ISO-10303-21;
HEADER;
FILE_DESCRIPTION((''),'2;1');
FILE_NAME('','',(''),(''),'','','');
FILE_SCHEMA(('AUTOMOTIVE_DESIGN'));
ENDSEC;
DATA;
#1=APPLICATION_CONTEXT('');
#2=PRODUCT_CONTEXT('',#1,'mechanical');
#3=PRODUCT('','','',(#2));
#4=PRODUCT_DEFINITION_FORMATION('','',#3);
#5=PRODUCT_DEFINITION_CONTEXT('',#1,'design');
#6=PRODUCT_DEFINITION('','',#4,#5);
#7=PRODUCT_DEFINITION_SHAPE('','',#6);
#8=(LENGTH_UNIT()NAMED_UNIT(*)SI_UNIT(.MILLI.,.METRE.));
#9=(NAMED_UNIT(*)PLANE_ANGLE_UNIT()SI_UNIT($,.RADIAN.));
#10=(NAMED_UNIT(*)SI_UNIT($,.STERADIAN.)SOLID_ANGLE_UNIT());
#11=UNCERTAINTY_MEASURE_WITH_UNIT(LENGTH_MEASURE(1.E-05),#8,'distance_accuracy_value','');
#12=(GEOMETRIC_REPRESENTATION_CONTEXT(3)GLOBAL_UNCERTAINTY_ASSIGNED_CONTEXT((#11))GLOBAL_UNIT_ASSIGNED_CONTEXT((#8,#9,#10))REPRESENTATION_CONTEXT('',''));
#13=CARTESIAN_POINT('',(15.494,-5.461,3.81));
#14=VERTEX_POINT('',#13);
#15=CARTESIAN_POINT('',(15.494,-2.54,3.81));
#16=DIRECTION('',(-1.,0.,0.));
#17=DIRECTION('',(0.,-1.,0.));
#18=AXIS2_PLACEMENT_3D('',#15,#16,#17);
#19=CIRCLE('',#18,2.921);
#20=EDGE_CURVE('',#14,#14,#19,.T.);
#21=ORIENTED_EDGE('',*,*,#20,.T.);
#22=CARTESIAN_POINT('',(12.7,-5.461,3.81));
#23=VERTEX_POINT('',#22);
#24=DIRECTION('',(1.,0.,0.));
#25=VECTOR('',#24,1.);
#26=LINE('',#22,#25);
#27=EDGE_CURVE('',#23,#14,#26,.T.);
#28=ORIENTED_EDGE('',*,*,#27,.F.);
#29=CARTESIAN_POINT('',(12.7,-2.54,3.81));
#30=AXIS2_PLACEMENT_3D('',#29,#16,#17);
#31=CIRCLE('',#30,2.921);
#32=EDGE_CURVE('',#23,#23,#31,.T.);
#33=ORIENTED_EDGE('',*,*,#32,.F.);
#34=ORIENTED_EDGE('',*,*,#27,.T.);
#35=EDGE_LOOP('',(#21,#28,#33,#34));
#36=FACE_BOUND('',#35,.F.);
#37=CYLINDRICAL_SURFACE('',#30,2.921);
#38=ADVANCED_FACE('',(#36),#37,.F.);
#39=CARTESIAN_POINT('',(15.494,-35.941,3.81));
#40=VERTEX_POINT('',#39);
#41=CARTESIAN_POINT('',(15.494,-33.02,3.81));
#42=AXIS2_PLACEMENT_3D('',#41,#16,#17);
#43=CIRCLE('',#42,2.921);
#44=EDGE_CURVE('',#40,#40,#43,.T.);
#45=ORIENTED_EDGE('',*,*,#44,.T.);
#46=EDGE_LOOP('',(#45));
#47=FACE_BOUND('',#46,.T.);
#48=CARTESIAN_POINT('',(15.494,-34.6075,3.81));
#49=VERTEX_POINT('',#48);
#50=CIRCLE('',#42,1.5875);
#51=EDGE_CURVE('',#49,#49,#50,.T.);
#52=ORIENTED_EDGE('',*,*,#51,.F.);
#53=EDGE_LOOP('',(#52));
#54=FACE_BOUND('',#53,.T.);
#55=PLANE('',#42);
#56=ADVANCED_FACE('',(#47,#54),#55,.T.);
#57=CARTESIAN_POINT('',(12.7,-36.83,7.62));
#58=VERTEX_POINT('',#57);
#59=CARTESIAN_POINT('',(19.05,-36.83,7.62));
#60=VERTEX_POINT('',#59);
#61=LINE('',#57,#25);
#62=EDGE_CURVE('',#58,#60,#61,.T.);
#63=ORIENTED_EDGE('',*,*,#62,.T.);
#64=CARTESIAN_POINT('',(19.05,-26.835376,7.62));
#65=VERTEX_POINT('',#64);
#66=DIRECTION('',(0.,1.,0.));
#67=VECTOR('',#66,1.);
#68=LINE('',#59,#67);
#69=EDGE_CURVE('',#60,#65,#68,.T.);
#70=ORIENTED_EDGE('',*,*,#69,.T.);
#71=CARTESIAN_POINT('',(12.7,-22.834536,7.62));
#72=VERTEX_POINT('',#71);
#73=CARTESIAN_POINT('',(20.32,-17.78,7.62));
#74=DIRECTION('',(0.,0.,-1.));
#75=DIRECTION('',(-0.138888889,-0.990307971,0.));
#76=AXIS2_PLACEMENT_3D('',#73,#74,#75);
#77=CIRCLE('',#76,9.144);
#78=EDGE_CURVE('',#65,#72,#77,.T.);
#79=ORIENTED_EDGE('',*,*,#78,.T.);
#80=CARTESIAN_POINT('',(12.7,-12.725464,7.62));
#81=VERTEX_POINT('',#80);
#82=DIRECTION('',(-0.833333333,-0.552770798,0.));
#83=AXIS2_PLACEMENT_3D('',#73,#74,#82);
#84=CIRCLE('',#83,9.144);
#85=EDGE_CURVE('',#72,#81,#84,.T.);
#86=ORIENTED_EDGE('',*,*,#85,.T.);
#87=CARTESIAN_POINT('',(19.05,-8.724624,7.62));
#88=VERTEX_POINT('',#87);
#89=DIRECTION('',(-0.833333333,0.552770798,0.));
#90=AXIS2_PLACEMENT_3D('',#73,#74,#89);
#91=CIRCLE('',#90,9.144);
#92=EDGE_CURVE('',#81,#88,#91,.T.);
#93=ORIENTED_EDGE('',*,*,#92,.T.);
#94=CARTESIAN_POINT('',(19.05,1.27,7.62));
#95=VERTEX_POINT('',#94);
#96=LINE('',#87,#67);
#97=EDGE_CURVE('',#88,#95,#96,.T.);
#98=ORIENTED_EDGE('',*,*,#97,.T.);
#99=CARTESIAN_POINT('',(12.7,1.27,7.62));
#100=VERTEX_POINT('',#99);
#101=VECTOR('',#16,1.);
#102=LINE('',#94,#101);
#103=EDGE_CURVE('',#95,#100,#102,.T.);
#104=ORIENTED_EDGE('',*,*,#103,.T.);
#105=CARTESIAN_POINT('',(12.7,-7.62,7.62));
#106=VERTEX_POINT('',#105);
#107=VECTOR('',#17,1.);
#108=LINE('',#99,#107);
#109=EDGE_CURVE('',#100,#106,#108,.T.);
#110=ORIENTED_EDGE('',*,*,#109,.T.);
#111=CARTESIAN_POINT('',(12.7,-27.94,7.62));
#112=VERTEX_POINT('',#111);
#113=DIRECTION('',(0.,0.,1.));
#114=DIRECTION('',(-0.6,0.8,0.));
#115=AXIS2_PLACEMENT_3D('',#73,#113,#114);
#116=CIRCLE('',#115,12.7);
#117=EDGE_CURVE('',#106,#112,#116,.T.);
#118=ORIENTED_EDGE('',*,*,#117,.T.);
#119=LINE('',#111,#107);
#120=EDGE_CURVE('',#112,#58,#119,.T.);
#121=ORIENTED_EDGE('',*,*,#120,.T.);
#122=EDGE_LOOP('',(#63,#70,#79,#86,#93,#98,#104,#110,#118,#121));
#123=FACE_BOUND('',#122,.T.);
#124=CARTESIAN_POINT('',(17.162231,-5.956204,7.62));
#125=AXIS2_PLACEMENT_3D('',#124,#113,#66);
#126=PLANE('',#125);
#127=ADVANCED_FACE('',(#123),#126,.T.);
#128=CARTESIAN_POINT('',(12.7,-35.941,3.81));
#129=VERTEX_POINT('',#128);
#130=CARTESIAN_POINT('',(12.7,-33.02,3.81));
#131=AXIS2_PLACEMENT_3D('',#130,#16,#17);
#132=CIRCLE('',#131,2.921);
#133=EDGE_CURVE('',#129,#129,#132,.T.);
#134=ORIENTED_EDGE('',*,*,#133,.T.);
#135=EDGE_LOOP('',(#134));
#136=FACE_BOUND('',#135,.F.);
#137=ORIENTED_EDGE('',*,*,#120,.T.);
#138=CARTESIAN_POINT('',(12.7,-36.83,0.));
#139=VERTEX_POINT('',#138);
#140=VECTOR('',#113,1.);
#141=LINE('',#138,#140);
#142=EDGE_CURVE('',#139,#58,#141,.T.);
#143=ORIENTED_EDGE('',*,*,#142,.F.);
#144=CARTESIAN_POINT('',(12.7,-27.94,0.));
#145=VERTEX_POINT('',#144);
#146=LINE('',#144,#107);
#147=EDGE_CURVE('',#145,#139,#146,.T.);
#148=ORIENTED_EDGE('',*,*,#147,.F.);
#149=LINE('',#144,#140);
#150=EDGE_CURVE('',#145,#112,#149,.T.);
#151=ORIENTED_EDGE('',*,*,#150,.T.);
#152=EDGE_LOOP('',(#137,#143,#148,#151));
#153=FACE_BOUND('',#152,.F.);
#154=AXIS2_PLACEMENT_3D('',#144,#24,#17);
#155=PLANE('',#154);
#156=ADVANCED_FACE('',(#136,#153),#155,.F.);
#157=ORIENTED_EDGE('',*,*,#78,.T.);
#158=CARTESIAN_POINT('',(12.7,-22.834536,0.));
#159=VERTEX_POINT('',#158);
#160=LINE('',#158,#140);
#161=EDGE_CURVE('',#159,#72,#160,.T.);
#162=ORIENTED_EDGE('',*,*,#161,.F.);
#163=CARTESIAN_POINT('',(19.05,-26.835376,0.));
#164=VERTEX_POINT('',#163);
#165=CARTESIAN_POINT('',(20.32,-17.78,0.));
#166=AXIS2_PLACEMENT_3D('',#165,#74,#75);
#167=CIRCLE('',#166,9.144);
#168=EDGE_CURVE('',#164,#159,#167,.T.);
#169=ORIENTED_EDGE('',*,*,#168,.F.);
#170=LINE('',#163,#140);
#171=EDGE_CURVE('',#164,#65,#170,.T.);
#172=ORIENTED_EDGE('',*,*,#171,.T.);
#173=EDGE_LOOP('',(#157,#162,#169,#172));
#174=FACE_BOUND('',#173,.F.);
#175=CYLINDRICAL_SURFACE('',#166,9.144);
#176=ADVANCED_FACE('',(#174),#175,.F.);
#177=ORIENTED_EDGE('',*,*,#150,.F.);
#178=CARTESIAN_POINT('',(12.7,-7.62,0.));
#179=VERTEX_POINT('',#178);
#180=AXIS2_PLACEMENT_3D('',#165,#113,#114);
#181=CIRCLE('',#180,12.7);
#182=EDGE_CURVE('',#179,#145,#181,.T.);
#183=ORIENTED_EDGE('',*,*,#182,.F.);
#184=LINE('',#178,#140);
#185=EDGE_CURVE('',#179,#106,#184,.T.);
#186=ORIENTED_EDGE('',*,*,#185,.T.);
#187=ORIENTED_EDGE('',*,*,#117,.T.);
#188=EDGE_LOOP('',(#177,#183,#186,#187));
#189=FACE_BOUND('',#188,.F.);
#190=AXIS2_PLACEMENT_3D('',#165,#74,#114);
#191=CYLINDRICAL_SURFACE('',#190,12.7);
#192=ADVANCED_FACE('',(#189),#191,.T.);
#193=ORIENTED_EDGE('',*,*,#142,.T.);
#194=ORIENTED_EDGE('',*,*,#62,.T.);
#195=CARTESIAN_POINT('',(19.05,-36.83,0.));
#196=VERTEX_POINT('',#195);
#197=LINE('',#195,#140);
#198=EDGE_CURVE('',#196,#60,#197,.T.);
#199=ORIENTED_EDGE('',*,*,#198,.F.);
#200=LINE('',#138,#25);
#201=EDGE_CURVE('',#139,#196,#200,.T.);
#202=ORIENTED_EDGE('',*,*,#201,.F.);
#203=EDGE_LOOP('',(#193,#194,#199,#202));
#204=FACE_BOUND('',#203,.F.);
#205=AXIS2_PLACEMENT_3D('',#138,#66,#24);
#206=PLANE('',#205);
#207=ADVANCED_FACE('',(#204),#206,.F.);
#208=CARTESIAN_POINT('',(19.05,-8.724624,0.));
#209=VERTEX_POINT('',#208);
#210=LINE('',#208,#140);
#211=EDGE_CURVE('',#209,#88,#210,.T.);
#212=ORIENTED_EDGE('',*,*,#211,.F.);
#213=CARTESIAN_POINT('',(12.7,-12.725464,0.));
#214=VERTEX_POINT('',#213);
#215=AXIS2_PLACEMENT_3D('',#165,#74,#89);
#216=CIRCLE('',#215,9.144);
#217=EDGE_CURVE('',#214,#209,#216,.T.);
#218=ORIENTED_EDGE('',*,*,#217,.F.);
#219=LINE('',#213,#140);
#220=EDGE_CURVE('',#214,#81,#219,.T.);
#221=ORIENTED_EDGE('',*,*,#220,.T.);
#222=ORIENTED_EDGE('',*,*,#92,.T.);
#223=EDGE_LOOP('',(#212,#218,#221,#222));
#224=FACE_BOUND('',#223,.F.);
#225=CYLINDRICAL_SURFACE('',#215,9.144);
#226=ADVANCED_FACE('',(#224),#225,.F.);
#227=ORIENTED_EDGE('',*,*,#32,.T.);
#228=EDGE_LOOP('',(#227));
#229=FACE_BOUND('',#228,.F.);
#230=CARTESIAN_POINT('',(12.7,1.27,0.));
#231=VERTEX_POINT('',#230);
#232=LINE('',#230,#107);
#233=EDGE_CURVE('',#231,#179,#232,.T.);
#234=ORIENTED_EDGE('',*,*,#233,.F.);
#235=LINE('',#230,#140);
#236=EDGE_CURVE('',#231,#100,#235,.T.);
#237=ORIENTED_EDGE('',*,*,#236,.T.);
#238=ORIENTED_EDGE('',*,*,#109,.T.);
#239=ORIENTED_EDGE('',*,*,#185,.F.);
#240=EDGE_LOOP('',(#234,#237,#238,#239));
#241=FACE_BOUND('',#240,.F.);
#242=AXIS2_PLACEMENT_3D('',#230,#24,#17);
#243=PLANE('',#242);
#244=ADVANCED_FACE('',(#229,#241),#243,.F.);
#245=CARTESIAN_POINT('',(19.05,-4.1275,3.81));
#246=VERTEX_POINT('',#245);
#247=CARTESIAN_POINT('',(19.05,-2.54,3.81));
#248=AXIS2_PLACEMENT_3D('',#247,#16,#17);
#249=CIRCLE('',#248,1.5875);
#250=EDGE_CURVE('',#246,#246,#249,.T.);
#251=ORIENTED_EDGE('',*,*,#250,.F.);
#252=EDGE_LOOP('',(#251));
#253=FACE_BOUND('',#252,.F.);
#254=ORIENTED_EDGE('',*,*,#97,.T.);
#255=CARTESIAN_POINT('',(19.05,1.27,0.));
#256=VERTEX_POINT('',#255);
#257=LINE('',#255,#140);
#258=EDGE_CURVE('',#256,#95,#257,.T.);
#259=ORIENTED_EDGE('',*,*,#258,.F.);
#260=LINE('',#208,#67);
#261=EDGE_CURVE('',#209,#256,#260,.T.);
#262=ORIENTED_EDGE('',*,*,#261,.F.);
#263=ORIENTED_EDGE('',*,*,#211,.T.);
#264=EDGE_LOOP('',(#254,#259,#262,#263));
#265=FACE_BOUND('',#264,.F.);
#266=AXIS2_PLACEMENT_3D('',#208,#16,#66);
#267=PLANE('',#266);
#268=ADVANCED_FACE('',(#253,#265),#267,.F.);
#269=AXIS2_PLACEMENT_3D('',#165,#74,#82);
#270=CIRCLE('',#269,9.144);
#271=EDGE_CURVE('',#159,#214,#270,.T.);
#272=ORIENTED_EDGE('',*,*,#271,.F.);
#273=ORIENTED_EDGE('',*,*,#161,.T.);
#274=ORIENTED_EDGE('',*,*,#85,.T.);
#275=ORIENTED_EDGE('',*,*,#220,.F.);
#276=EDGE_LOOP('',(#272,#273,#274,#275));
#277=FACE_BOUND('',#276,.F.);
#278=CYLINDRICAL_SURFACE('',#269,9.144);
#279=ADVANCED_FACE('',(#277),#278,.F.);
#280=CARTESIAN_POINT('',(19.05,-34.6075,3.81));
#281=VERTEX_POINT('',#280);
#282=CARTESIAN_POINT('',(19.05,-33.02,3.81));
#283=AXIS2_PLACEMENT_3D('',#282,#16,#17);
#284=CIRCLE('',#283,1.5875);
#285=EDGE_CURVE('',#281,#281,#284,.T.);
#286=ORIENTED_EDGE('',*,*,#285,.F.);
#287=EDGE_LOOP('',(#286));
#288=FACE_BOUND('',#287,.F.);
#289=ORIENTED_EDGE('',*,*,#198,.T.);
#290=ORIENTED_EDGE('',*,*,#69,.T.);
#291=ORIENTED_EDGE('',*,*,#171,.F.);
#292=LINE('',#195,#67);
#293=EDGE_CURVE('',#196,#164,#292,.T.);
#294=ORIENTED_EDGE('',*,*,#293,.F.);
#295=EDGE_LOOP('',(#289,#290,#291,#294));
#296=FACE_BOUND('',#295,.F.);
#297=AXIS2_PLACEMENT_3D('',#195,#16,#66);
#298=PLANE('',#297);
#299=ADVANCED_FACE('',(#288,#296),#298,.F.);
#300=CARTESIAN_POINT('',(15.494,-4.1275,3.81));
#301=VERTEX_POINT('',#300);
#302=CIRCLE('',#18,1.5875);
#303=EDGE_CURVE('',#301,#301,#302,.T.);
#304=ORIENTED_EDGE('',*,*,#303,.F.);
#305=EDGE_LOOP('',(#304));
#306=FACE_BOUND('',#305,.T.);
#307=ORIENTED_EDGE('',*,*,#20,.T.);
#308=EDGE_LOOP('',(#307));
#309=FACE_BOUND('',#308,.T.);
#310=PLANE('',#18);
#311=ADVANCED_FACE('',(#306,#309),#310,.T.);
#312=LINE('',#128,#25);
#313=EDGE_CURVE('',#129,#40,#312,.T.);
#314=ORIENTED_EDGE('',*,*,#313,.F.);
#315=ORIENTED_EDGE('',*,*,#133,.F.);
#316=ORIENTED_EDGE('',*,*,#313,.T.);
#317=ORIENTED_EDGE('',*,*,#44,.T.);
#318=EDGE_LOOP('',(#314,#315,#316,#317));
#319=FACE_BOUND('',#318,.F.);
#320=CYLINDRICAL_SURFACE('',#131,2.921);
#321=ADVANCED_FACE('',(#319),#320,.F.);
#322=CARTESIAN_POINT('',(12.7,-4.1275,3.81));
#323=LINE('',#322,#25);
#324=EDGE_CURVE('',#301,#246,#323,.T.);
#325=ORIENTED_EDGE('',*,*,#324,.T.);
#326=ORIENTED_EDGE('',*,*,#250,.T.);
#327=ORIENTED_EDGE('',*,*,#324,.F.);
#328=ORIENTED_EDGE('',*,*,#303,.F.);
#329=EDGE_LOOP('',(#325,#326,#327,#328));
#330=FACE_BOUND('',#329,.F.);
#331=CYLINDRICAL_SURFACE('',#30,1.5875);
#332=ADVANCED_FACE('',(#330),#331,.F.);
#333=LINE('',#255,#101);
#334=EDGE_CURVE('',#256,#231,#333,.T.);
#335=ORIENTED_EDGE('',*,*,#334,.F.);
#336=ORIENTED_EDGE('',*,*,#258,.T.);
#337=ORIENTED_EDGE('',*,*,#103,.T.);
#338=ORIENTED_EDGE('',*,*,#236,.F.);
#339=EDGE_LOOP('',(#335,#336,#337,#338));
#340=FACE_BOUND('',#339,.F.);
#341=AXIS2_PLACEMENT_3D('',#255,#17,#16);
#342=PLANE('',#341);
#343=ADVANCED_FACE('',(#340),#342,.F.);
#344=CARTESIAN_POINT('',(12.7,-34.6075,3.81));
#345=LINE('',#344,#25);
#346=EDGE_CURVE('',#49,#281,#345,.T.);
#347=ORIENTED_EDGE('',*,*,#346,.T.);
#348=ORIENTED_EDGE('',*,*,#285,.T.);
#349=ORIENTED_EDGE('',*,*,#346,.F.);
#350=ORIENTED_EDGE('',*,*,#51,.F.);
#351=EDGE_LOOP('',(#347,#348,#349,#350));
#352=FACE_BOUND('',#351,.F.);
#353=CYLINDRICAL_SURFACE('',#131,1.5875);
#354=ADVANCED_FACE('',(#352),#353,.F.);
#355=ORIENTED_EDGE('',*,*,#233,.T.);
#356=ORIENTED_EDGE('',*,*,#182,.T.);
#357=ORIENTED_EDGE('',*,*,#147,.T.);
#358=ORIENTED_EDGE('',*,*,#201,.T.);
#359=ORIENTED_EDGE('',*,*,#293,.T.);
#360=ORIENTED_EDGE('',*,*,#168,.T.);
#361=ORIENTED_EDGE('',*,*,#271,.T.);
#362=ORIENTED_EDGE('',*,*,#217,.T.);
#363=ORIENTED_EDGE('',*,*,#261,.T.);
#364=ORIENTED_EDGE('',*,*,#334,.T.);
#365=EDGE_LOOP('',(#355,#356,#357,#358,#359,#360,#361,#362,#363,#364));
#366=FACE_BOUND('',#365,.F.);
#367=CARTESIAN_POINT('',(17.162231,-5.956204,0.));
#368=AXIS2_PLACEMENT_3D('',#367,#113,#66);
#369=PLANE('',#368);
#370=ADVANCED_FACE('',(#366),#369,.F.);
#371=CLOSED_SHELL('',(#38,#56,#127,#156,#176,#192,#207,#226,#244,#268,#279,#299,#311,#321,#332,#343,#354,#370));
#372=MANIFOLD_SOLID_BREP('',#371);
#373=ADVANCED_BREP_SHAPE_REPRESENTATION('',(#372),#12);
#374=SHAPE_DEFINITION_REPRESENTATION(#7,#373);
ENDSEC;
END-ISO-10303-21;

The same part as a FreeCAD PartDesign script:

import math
import FreeCAD as App
import Part
import Sketcher

V = App.Vector
Q = App.Units.Quantity

doc = App.newDocument("Part")
body = doc.addObject("PartDesign::Body", "Body")

# Sketch on XY plane
sketch1 = body.newObject("Sketcher::SketchObject", "Sketch")
sketch1.AttachmentSupport = (doc.getObject("XY_Plane"), [""])
sketch1.MapMode = "FlatFace"
sketch1.addGeometry([
    Part.LineSegment(V(19.05, 1.27, 0), V(19.05, 7.62, 0)),  # 0
    Part.LineSegment(V(19.05, 7.62, 0), V(10.16, 7.62, 0)),  # 1
    Part.ArcOfCircle(Part.Circle(V(0, 0, 0), V(0, 0, 1), 12.7), math.radians(36.869898), math.radians(143.130102)),  # 2
    Part.LineSegment(V(-10.16, 7.62, 0), V(-19.05, 7.62, 0)),  # 3
    Part.LineSegment(V(-19.05, 7.62, 0), V(-19.05, 1.27, 0)),  # 4
    Part.LineSegment(V(-19.05, 1.27, 0), V(-9.055376, 1.27, 0)),  # 5
    Part.ArcOfCircle(Part.Circle(V(0, 0, 0), V(0, 0, 1), 9.144), math.radians(123.55731), math.radians(172.016444)),  # 6
    Part.ArcOfCircle(Part.Circle(V(0, 0, 0), V(0, 0, 1), 9.144), math.radians(56.44269), math.radians(123.55731)),  # 7
    Part.ArcOfCircle(Part.Circle(V(0, 0, 0), V(0, 0, 1), 9.144), math.radians(7.983556), math.radians(56.44269)),  # 8
    Part.LineSegment(V(9.055376, 1.27, 0), V(19.05, 1.27, 0)),  # 9
], False)
sketch1.addConstraint([
    Sketcher.Constraint("Coincident", 0, 2, 1, 1),
    Sketcher.Constraint("Coincident", 1, 2, 2, 1),
    Sketcher.Constraint("Coincident", 2, 2, 3, 1),
    Sketcher.Constraint("Coincident", 3, 2, 4, 1),
    Sketcher.Constraint("Coincident", 4, 2, 5, 1),
    Sketcher.Constraint("Coincident", 5, 2, 6, 2),
    Sketcher.Constraint("Tangent", 6, 1, 7, 2),
    Sketcher.Constraint("Tangent", 7, 1, 8, 2),
    Sketcher.Constraint("Coincident", 8, 1, 9, 1),
    Sketcher.Constraint("Coincident", 9, 2, 0, 1),
    Sketcher.Constraint("Vertical", 0),
    Sketcher.Constraint("Horizontal", 1),
    Sketcher.Constraint("Horizontal", 3),
    Sketcher.Constraint("Vertical", 4),
    Sketcher.Constraint("Horizontal", 5),
    Sketcher.Constraint("Horizontal", 9),
    Sketcher.Constraint("Coincident", 2, 3, -1, 1),
    Sketcher.Constraint("Coincident", 6, 3, -1, 1),
    Sketcher.Constraint("Coincident", 8, 3, -1, 1),
    Sketcher.Constraint("Symmetric", 0, 2, 3, 2, -2),
    Sketcher.Constraint("Horizontal", 3, 2, 6, 1),
    Sketcher.Constraint("Horizontal", 6, 1, 7, 1),
    Sketcher.Constraint("Horizontal", 5, 2, 8, 1),
    Sketcher.Constraint("Radius", 2, Q("0.5 in")),
    Sketcher.Constraint("Radius", 6, Q("0.36 in")),
    Sketcher.Constraint("DistanceX", 1, 2, 1, 1, Q("0.35 in")),
    Sketcher.Constraint("DistanceY", 0, 1, 0, 2, Q("0.25 in")),
    Sketcher.Constraint("DistanceY", -1, 1, 0, 2, Q("0.3 in")),
])
pad1 = body.newObject("PartDesign::Pad", "Pad")
pad1.Profile = sketch1
pad1.Length = Q("0.3 in")

# Sketch on XZ plane
sketch2 = body.newObject("Sketcher::SketchObject", "Sketch001")
sketch2.AttachmentSupport = (doc.getObject("XZ_Plane"), [""])
sketch2.MapMode = "FlatFace"
sketch2.AttachmentOffset = App.Placement(V(0, 0, -0.3 * 25.4), App.Rotation())
sketch2.addGeometry([
    Part.Circle(V(15.24, 3.81, 0), V(0, 0, 1), 1.5875),
    Part.Circle(V(-15.24, 3.81, 0), V(0, 0, 1), 1.5875),
], False)
sketch2.addConstraint([
    Sketcher.Constraint("Equal", 0, 1),
    Sketcher.Constraint("Symmetric", 0, 3, 1, 3, -2),
    Sketcher.Constraint("Diameter", 0, Q("0.125 in")),
    Sketcher.Constraint("DistanceX", -1, 1, 0, 3, Q("0.6 in")),
    Sketcher.Constraint("DistanceY", -1, 1, 0, 3, Q("0.15 in")),
])
pocket1 = body.newObject("PartDesign::Pocket", "Pocket")
pocket1.Profile = sketch2
pocket1.Length = Q("1 in")
pocket1.Reversed = True

# Sketch on XZ plane
sketch3 = body.newObject("Sketcher::SketchObject", "Sketch002")
sketch3.AttachmentSupport = (doc.getObject("XZ_Plane"), [""])
sketch3.MapMode = "FlatFace"
sketch3.AttachmentOffset = App.Placement(V(0, 0, -0.3 * 25.4), App.Rotation())
sketch3.addGeometry([
    Part.Circle(V(15.24, 3.81, 0), V(0, 0, 1), 2.921),
    Part.Circle(V(15.24, 3.81, 0), V(0, 0, 1), 1.5875),
    Part.Circle(V(-15.24, 3.81, 0), V(0, 0, 1), 2.921),
    Part.Circle(V(-15.24, 3.81, 0), V(0, 0, 1), 1.5875),
], False)
sketch3.addConstraint([
    Sketcher.Constraint("Coincident", 1, 3, 0, 3),
    Sketcher.Constraint("Coincident", 3, 3, 2, 3),
    Sketcher.Constraint("Equal", 0, 2),
    Sketcher.Constraint("Equal", 1, 3),
    Sketcher.Constraint("Symmetric", 0, 3, 2, 3, -2),
    Sketcher.Constraint("Diameter", 0, Q("0.23 in")),
    Sketcher.Constraint("Diameter", 1, Q("0.125 in")),
    Sketcher.Constraint("DistanceX", -1, 1, 0, 3, Q("0.6 in")),
    Sketcher.Constraint("DistanceY", -1, 1, 0, 3, Q("0.15 in")),
])
pocket2 = body.newObject("PartDesign::Pocket", "Pocket001")
pocket2.Profile = sketch3
pocket2.Length = Q("0.11 in")
pocket2.Reversed = True
body2 = doc.addObject("PartDesign::Body", "Body001")
doc.recompute()

body.Placement = App.Placement(V(20.32, -17.78, 0), App.Rotation(V(0, 0, -1), 270))
boolean = body2.newObject("PartDesign::Boolean", "Boolean")
boolean.Type = "Fuse"
boolean.addObjects([body])

doc.recompute()
